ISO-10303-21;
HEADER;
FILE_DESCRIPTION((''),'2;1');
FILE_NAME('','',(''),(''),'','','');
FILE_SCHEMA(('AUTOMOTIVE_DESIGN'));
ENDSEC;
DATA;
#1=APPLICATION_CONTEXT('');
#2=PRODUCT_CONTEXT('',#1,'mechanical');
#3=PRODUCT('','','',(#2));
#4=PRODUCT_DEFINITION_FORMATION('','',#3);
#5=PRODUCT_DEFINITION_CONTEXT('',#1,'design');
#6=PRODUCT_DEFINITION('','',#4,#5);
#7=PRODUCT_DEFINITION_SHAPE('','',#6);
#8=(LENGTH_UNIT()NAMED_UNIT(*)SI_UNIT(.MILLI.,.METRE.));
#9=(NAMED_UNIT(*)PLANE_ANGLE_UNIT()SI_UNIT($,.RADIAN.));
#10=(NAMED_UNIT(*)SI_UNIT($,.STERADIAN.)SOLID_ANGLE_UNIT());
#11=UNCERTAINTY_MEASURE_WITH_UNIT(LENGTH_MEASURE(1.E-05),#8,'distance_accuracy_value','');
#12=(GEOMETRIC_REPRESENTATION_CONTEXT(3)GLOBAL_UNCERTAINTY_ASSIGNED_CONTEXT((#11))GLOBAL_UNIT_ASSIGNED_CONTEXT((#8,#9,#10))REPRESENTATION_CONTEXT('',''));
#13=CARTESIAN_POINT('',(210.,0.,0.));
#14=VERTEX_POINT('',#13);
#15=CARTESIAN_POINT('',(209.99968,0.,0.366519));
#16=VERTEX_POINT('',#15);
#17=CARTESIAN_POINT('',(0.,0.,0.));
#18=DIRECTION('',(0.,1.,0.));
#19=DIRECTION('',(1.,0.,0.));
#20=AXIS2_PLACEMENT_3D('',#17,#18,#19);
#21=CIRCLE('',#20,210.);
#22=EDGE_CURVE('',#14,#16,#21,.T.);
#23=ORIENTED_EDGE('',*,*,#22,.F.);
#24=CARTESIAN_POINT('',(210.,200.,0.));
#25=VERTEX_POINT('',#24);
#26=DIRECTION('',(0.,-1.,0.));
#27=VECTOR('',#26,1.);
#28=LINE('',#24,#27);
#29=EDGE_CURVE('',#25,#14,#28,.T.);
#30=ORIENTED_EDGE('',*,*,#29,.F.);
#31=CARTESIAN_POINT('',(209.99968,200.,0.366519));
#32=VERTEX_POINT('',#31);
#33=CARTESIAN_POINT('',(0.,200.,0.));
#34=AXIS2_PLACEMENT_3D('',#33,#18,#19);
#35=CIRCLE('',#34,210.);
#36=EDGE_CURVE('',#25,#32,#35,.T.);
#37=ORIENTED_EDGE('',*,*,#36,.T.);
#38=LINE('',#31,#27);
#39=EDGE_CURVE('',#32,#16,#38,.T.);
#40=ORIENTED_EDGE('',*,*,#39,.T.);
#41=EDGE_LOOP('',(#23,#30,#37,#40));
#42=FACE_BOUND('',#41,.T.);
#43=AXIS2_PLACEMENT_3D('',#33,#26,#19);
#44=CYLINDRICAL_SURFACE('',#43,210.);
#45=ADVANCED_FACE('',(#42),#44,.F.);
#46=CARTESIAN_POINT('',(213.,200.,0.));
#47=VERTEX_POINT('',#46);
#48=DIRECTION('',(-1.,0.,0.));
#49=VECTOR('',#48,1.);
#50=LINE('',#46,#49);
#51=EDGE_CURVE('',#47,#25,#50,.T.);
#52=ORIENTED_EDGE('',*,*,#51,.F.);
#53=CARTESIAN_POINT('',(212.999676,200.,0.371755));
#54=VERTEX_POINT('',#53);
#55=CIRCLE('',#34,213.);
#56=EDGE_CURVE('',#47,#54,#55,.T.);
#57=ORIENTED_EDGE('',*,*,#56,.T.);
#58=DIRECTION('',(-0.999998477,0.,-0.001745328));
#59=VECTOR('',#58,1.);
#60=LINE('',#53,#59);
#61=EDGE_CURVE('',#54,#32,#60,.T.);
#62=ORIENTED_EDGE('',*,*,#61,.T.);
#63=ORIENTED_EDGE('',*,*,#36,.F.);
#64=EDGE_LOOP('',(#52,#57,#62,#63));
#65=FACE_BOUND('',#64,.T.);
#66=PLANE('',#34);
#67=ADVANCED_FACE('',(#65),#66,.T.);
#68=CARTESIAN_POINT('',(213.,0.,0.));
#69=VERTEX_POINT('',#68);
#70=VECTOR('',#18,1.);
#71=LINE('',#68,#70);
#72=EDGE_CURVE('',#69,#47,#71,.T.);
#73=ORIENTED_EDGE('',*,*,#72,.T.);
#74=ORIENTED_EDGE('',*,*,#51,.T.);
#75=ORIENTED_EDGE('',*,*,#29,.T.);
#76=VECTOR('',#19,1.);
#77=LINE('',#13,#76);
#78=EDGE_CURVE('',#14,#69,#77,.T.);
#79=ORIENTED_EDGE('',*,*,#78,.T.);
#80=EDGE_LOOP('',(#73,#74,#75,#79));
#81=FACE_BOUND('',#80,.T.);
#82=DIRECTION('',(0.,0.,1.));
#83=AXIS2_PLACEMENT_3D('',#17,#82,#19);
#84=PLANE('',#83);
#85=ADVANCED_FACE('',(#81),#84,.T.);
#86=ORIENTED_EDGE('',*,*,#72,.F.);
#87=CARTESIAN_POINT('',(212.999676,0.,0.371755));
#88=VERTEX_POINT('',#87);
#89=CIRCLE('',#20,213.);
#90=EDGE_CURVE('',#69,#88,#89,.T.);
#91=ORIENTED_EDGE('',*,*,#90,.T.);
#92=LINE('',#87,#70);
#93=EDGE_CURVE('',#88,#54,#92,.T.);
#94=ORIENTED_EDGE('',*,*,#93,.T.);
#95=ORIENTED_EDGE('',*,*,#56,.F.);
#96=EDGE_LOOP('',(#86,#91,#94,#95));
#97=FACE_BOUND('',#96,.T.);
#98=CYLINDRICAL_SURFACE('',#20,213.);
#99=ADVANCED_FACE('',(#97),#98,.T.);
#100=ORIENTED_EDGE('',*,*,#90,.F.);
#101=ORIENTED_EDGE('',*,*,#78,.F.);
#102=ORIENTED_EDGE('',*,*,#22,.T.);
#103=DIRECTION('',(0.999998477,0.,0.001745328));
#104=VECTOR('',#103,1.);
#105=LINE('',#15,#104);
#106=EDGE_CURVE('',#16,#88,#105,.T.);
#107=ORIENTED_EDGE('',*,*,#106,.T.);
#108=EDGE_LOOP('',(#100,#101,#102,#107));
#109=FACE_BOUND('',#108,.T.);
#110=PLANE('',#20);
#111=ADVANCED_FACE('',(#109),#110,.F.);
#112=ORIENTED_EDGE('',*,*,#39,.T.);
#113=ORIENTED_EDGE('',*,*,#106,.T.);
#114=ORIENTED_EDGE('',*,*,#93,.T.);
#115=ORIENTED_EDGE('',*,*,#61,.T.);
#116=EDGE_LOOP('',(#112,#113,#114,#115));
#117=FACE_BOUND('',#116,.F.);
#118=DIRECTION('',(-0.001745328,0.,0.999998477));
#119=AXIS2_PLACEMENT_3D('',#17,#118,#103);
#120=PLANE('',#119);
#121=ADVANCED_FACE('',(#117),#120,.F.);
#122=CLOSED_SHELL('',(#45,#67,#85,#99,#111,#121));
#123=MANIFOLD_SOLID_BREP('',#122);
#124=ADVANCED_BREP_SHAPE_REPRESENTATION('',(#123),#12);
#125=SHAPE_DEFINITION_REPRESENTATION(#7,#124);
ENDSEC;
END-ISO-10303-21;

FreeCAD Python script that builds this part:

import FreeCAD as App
import Part
import Sketcher

V = App.Vector
Q = App.Units.Quantity

doc = App.newDocument("Part")
body = doc.addObject("PartDesign::Body", "Body")

# Sketch on XY plane
sketch1 = doc.addObject("Sketcher::SketchObject", "Sketch")
body.addObject(sketch1)
sketch1.AttachmentSupport = (doc.XY_Plane, [""])
sketch1.MapMode = "FlatFace"
sketch1.addGeometry(Part.LineSegment(V(210, 200, 0), V(210, 0, 0)), False)
sketch1.addGeometry(Part.LineSegment(V(210, 0, 0), V(213, 0, 0)), False)
sketch1.addGeometry(Part.LineSegment(V(213, 0, 0), V(213, 200, 0)), False)
sketch1.addGeometry(Part.LineSegment(V(213, 200, 0), V(210, 200, 0)), False)
sketch1.addConstraint(Sketcher.Constraint("Coincident", 0, 2, 1, 1))
sketch1.addConstraint(Sketcher.Constraint("Coincident", 1, 2, 2, 1))
sketch1.addConstraint(Sketcher.Constraint("Coincident", 2, 2, 3, 1))
sketch1.addConstraint(Sketcher.Constraint("Coincident", 3, 2, 0, 1))
sketch1.addConstraint(Sketcher.Constraint("Vertical", 0))
sketch1.addConstraint(Sketcher.Constraint("Horizontal", 1))
sketch1.addConstraint(Sketcher.Constraint("Vertical", 2))
sketch1.addConstraint(Sketcher.Constraint("Horizontal", 3))
sketch1.addConstraint(Sketcher.Constraint("PointOnObject", 0, 2, -1))
sketch1.addConstraint(Sketcher.Constraint("DistanceX", 1, 1, 1, 2, Q("3 mm")))
sketch1.addConstraint(Sketcher.Constraint("DistanceY", 0, 2, 0, 1, Q("200 mm")))
sketch1.addConstraint(Sketcher.Constraint("DistanceX", -1, 1, 0, 2, Q("210 mm")))
revolution = doc.addObject("PartDesign::Revolution", "Revolution")
body.addObject(revolution)
revolution.Profile = sketch1
revolution.ReferenceAxis = (sketch1, ["V_Axis"])
revolution.Angle = 359.9

doc.recompute()
